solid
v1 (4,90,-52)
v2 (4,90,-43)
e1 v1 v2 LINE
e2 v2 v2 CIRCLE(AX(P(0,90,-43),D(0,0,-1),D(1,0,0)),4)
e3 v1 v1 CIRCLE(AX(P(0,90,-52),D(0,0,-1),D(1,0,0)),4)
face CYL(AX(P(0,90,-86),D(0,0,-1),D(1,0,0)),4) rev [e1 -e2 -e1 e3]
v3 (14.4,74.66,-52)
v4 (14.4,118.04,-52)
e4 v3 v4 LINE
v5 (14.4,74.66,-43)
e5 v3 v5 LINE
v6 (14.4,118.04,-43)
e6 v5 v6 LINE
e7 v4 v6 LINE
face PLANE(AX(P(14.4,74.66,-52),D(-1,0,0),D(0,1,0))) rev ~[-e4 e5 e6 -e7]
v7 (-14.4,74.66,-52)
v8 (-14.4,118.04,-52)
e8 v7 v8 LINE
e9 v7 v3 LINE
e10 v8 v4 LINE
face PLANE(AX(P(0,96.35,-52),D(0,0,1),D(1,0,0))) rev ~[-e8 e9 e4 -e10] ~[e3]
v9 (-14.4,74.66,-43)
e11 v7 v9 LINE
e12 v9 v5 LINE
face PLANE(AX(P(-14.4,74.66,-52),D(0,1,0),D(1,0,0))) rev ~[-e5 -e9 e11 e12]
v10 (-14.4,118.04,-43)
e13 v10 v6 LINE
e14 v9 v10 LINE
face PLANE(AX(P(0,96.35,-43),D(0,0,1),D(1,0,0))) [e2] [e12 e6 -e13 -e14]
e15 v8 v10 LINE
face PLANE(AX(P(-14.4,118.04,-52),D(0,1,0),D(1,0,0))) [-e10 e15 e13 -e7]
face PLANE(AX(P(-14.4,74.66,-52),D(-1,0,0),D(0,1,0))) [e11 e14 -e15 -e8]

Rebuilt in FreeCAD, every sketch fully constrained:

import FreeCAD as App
import Part
import Sketcher

V = App.Vector
Q = App.Units.Quantity


def add_polygon(sketch, points):
    """Adds a closed chain of lines whose ends are joined by coincident constraints."""
    first, n = sketch.GeometryCount, len(points)
    for a, b in zip(points, points[1:] + points[:1]):
        sketch.addGeometry(Part.LineSegment(App.Vector(*a, 0), App.Vector(*b, 0)), False)
    for i in range(n):
        sketch.addConstraint(Sketcher.Constraint("Coincident", first + i, 2, first + (i + 1) % n, 1))

doc = App.newDocument("Part")
body = doc.addObject("PartDesign::Body", "Body")

# Sketch on XY plane
sketch1 = body.newObject("Sketcher::SketchObject", "Sketch")
sketch1.AttachmentSupport = (doc.getObject("XY_Plane"), [""])
sketch1.MapMode = "FlatFace"
sketch1.addGeometry(Part.Circle(V(0, 0, 0), V(0, 0, 1), 4), False)
sketch1.addConstraint(Sketcher.Constraint("Coincident", 0, 3, -1, 1))
sketch1.addConstraint(Sketcher.Constraint("Diameter", 0, Q("8 mm")))
pad1 = body.newObject("PartDesign::Pad", "Pad")
pad1.Profile = sketch1
pad1.Length = 100
body2 = doc.addObject("PartDesign::Body", "Body001")

# Sketch on XY plane
sketch2 = body2.newObject("Sketcher::SketchObject", "Sketch001")
sketch2.AttachmentSupport = (doc.getObject("XY_Plane001"), [""])
sketch2.MapMode = "FlatFace"
sketch2.AttachmentOffset = App.Placement(V(0, 0, 34), App.Rotation())
add_polygon(sketch2, [(-14, 28), (-14, -15), (14, -15), (14, 28)])  # lines 0-3
sketch2.addConstraint(Sketcher.Constraint("Vertical", 0))
sketch2.addConstraint(Sketcher.Constraint("Horizontal", 1))
sketch2.addConstraint(Sketcher.Constraint("Vertical", 2))
sketch2.addConstraint(Sketcher.Constraint("Horizontal", 3))
sketch2.addConstraint(Sketcher.Constraint("DistanceX", 1, 1, 1, 2, Q("28.8 mm")))
sketch2.addConstraint(Sketcher.Constraint("DistanceY", 0, 2, 0, 1, Q("43.38 mm")))
sketch2.addConstraint(Sketcher.Constraint("DistanceX", 0, 2, -1, 1, Q("14.4 mm")))
sketch2.addConstraint(Sketcher.Constraint("DistanceY", 0, 2, -1, 1, Q("15.34 mm")))
pad2 = body2.newObject("PartDesign::Pad", "Pad001")
pad2.Profile = sketch2
pad2.Length = 9
doc.recompute()

boolean = body2.newObject("PartDesign::Boolean", "Boolean")
boolean.Type = "Cut"
boolean.addObjects([body])
body3 = doc.addObject("PartDesign::Body", "Body002")
doc.recompute()

body2.Placement = App.Placement(V(0, 90, -86), App.Rotation(V(0, 0, 1), 0))
boolean2 = body3.newObject("PartDesign::Boolean", "Boolean001")
boolean2.Type = "Fuse"
boolean2.addObjects([body2])

doc.recompute()
